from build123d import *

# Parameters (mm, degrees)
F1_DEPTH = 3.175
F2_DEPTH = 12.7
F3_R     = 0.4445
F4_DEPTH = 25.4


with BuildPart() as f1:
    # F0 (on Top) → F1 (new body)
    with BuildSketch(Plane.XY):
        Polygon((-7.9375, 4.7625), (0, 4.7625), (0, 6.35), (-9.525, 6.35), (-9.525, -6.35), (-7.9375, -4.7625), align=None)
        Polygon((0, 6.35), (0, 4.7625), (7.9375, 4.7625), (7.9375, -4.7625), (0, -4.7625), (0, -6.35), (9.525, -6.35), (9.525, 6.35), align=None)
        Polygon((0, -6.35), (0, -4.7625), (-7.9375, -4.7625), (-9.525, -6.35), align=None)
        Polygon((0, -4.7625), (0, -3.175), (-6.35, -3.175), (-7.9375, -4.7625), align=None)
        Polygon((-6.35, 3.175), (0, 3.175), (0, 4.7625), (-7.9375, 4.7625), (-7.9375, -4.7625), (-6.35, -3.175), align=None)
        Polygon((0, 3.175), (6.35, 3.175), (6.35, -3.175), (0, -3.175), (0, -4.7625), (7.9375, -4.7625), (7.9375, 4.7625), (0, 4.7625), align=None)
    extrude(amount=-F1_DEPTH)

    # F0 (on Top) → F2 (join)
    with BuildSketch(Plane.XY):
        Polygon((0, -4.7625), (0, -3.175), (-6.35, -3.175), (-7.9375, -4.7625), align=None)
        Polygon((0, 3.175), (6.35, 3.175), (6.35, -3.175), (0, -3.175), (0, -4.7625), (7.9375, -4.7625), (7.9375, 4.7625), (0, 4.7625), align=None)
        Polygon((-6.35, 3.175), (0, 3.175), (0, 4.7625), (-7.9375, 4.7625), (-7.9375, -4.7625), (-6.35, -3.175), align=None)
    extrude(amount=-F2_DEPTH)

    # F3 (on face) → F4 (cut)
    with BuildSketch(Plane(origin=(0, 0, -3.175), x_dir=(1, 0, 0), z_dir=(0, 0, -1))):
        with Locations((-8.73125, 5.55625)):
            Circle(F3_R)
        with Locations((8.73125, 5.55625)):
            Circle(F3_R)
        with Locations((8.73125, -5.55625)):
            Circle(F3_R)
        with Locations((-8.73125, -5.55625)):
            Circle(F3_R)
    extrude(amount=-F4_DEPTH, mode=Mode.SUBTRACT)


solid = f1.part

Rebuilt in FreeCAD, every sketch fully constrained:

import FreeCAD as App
import Part
import Sketcher

V = App.Vector
Q = App.Units.Quantity

doc = App.newDocument("Part")
body = doc.addObject("PartDesign::Body", "Body")

sketch1 = body.newObject("Sketcher::SketchObject", "Sketch")
sketch1.AttachmentSupport = (doc.getObject("XY_Plane"), [""])
sketch1.MapMode = "FlatFace"
sketch1.addGeometry(Part.LineSegment(V(10, -6, 0), V(10, 6, 0)), False)
sketch1.addGeometry(Part.LineSegment(V(10, 6, 0), V(-10, 6, 0)), False)
sketch1.addGeometry(Part.LineSegment(V(-10, 6, 0), V(-10, -6, 0)), False)
sketch1.addGeometry(Part.LineSegment(V(-10, -6, 0), V(10, -6, 0)), False)
sketch1.addGeometry(Part.LineSegment(V(-6, -3, 0), V(-6, 3, 0)), False)
sketch1.addGeometry(Part.LineSegment(V(-6, 3, 0), V(6, 3, 0)), False)
sketch1.addGeometry(Part.LineSegment(V(6, 3, 0), V(6, -3, 0)), False)
sketch1.addGeometry(Part.LineSegment(V(6, -3, 0), V(-6, -3, 0)), False)
sketch1.addConstraint(Sketcher.Constraint("Coincident", 0, 2, 1, 1))
sketch1.addConstraint(Sketcher.Constraint("Coincident", 1, 2, 2, 1))
sketch1.addConstraint(Sketcher.Constraint("Coincident", 2, 2, 3, 1))
sketch1.addConstraint(Sketcher.Constraint("Coincident", 3, 2, 0, 1))
sketch1.addConstraint(Sketcher.Constraint("Coincident", 4, 2, 5, 1))
sketch1.addConstraint(Sketcher.Constraint("Coincident", 5, 2, 6, 1))
sketch1.addConstraint(Sketcher.Constraint("Coincident", 6, 2, 7, 1))
sketch1.addConstraint(Sketcher.Constraint("Coincident", 7, 2, 4, 1))
sketch1.addConstraint(Sketcher.Constraint("Vertical", 0))
sketch1.addConstraint(Sketcher.Constraint("Horizontal", 1))
sketch1.addConstraint(Sketcher.Constraint("Vertical", 2))
sketch1.addConstraint(Sketcher.Constraint("Horizontal", 3))
sketch1.addConstraint(Sketcher.Constraint("Vertical", 4))
sketch1.addConstraint(Sketcher.Constraint("Horizontal", 5))
sketch1.addConstraint(Sketcher.Constraint("Vertical", 6))
sketch1.addConstraint(Sketcher.Constraint("Horizontal", 7))
sketch1.addConstraint(Sketcher.Constraint("Symmetric", 0, 2, 2, 2, -1, 1))
sketch1.addConstraint(Sketcher.Constraint("Symmetric", 4, 2, 6, 2, -1, 1))
sketch1.addConstraint(Sketcher.Constraint("Equal", 7, 0))
sketch1.addConstraint(Sketcher.Constraint("DistanceX", 5, 1, 5, 2, Q("0.5 in")))
sketch1.addConstraint(Sketcher.Constraint("DistanceX", 1, 2, 1, 1, Q("0.75 in")))
sketch1.addConstraint(Sketcher.Constraint("DistanceY", 4, 1, 4, 2, Q("0.25 in")))
pad1 = body.newObject("PartDesign::Pad", "Pad")
pad1.Profile = sketch1
pad1.Length = Q("0.125 in")
pad1.Reversed = True

sketch2 = body.newObject("Sketcher::SketchObject", "Sketch001")
sketch2.AttachmentSupport = (doc.getObject("XY_Plane"), [""])
sketch2.MapMode = "FlatFace"
sketch2.addGeometry(Part.LineSegment(V(-8, -5, 0), V(8, -5, 0)), False)
sketch2.addGeometry(Part.LineSegment(V(8, -5, 0), V(8, 5, 0)), False)
sketch2.addGeometry(Part.LineSegment(V(8, 5, 0), V(-8, 5, 0)), False)
sketch2.addGeometry(Part.LineSegment(V(-8, 5, 0), V(-8, -5, 0)), False)
sketch2.addGeometry(Part.LineSegment(V(6, 3, 0), V(6, -3, 0)), False)
sketch2.addGeometry(Part.LineSegment(V(6, -3, 0), V(-6, -3, 0)), False)
sketch2.addGeometry(Part.LineSegment(V(-6, -3, 0), V(-6, 3, 0)), False)
sketch2.addGeometry(Part.LineSegment(V(-6, 3, 0), V(6, 3, 0)), False)
sketch2.addConstraint(Sketcher.Constraint("Coincident", 0, 2, 1, 1))
sketch2.addConstraint(Sketcher.Constraint("Coincident", 1, 2, 2, 1))
sketch2.addConstraint(Sketcher.Constraint("Coincident", 2, 2, 3, 1))
sketch2.addConstraint(Sketcher.Constraint("Coincident", 3, 2, 0, 1))
sketch2.addConstraint(Sketcher.Constraint("Coincident", 4, 2, 5, 1))
sketch2.addConstraint(Sketcher.Constraint("Coincident", 5, 2, 6, 1))
sketch2.addConstraint(Sketcher.Constraint("Coincident", 6, 2, 7, 1))
sketch2.addConstraint(Sketcher.Constraint("Coincident", 7, 2, 4, 1))
sketch2.addConstraint(Sketcher.Constraint("Horizontal", 0))
sketch2.addConstraint(Sketcher.Constraint("Vertical", 1))
sketch2.addConstraint(Sketcher.Constraint("Horizontal", 2))
sketch2.addConstraint(Sketcher.Constraint("Vertical", 3))
sketch2.addConstraint(Sketcher.Constraint("Vertical", 4))
sketch2.addConstraint(Sketcher.Constraint("Horizontal", 5))
sketch2.addConstraint(Sketcher.Constraint("Vertical", 6))
sketch2.addConstraint(Sketcher.Constraint("Horizontal", 7))
sketch2.addConstraint(Sketcher.Constraint("Symmetric", 0, 2, 2, 2, -1, 1))
sketch2.addConstraint(Sketcher.Constraint("Symmetric", 4, 2, 6, 2, -1, 1))
sketch2.addConstraint(Sketcher.Constraint("DistanceX", 5, 2, 5, 1, Q("0.5 in")))
sketch2.addConstraint(Sketcher.Constraint("DistanceY", 4, 2, 4, 1, Q("0.25 in")))
sketch2.addConstraint(Sketcher.Constraint("DistanceX", 0, 1, 0, 2, Q("0.625 in")))
sketch2.addConstraint(Sketcher.Constraint("DistanceY", 1, 1, 1, 2, Q("0.375 in")))
pad2 = body.newObject("PartDesign::Pad", "Pad001")
pad2.Profile = sketch2
pad2.Length = Q("0.5 in")
pad2.Reversed = True

sketch3 = body.newObject("Sketcher::SketchObject", "Sketch002")
sketch3.AttachmentSupport = (doc.getObject("XY_Plane"), [""])
sketch3.MapMode = "FlatFace"
sketch3.AttachmentOffset = App.Placement(V(0, 0, -0.125 * 25.4), App.Rotation())
sketch3.addGeometry(Part.Circle(V(-8.73, -5.56, 0), V(0, 0, 1), 0.44), False)
sketch3.addGeometry(Part.Circle(V(8.73, -5.56, 0), V(0, 0, 1), 0.44), False)
sketch3.addGeometry(Part.Circle(V(8.73, 5.56, 0), V(0, 0, 1), 0.44), False)
sketch3.addGeometry(Part.Circle(V(-8.73, 5.56, 0), V(0, 0, 1), 0.44), False)
sketch3.addConstraint(Sketcher.Constraint("Equal", 0, 1))
sketch3.addConstraint(Sketcher.Constraint("Equal", 1, 2))
sketch3.addConstraint(Sketcher.Constraint("Equal", 2, 3))
sketch3.addConstraint(Sketcher.Constraint("Symmetric", 0, 3, 2, 3, -1, 1))
sketch3.addConstraint(Sketcher.Constraint("Symmetric", 1, 3, 3, 3, -1, 1))
sketch3.addConstraint(Sketcher.Constraint("Symmetric", 0, 3, 1, 3, -2))
sketch3.addConstraint(Sketcher.Constraint("Diameter", 0, Q("0.035 in")))
sketch3.addConstraint(Sketcher.Constraint("DistanceX", 0, 3, -1, 1, Q("0.34375 in")))
sketch3.addConstraint(Sketcher.Constraint("DistanceY", 0, 3, -1, 1, Q("0.21875 in")))
pocket1 = body.newObject("PartDesign::Pocket", "Pocket")
pocket1.Profile = sketch3
pocket1.Length = Q("1 in")
pocket1.Reversed = True

doc.recompute()
